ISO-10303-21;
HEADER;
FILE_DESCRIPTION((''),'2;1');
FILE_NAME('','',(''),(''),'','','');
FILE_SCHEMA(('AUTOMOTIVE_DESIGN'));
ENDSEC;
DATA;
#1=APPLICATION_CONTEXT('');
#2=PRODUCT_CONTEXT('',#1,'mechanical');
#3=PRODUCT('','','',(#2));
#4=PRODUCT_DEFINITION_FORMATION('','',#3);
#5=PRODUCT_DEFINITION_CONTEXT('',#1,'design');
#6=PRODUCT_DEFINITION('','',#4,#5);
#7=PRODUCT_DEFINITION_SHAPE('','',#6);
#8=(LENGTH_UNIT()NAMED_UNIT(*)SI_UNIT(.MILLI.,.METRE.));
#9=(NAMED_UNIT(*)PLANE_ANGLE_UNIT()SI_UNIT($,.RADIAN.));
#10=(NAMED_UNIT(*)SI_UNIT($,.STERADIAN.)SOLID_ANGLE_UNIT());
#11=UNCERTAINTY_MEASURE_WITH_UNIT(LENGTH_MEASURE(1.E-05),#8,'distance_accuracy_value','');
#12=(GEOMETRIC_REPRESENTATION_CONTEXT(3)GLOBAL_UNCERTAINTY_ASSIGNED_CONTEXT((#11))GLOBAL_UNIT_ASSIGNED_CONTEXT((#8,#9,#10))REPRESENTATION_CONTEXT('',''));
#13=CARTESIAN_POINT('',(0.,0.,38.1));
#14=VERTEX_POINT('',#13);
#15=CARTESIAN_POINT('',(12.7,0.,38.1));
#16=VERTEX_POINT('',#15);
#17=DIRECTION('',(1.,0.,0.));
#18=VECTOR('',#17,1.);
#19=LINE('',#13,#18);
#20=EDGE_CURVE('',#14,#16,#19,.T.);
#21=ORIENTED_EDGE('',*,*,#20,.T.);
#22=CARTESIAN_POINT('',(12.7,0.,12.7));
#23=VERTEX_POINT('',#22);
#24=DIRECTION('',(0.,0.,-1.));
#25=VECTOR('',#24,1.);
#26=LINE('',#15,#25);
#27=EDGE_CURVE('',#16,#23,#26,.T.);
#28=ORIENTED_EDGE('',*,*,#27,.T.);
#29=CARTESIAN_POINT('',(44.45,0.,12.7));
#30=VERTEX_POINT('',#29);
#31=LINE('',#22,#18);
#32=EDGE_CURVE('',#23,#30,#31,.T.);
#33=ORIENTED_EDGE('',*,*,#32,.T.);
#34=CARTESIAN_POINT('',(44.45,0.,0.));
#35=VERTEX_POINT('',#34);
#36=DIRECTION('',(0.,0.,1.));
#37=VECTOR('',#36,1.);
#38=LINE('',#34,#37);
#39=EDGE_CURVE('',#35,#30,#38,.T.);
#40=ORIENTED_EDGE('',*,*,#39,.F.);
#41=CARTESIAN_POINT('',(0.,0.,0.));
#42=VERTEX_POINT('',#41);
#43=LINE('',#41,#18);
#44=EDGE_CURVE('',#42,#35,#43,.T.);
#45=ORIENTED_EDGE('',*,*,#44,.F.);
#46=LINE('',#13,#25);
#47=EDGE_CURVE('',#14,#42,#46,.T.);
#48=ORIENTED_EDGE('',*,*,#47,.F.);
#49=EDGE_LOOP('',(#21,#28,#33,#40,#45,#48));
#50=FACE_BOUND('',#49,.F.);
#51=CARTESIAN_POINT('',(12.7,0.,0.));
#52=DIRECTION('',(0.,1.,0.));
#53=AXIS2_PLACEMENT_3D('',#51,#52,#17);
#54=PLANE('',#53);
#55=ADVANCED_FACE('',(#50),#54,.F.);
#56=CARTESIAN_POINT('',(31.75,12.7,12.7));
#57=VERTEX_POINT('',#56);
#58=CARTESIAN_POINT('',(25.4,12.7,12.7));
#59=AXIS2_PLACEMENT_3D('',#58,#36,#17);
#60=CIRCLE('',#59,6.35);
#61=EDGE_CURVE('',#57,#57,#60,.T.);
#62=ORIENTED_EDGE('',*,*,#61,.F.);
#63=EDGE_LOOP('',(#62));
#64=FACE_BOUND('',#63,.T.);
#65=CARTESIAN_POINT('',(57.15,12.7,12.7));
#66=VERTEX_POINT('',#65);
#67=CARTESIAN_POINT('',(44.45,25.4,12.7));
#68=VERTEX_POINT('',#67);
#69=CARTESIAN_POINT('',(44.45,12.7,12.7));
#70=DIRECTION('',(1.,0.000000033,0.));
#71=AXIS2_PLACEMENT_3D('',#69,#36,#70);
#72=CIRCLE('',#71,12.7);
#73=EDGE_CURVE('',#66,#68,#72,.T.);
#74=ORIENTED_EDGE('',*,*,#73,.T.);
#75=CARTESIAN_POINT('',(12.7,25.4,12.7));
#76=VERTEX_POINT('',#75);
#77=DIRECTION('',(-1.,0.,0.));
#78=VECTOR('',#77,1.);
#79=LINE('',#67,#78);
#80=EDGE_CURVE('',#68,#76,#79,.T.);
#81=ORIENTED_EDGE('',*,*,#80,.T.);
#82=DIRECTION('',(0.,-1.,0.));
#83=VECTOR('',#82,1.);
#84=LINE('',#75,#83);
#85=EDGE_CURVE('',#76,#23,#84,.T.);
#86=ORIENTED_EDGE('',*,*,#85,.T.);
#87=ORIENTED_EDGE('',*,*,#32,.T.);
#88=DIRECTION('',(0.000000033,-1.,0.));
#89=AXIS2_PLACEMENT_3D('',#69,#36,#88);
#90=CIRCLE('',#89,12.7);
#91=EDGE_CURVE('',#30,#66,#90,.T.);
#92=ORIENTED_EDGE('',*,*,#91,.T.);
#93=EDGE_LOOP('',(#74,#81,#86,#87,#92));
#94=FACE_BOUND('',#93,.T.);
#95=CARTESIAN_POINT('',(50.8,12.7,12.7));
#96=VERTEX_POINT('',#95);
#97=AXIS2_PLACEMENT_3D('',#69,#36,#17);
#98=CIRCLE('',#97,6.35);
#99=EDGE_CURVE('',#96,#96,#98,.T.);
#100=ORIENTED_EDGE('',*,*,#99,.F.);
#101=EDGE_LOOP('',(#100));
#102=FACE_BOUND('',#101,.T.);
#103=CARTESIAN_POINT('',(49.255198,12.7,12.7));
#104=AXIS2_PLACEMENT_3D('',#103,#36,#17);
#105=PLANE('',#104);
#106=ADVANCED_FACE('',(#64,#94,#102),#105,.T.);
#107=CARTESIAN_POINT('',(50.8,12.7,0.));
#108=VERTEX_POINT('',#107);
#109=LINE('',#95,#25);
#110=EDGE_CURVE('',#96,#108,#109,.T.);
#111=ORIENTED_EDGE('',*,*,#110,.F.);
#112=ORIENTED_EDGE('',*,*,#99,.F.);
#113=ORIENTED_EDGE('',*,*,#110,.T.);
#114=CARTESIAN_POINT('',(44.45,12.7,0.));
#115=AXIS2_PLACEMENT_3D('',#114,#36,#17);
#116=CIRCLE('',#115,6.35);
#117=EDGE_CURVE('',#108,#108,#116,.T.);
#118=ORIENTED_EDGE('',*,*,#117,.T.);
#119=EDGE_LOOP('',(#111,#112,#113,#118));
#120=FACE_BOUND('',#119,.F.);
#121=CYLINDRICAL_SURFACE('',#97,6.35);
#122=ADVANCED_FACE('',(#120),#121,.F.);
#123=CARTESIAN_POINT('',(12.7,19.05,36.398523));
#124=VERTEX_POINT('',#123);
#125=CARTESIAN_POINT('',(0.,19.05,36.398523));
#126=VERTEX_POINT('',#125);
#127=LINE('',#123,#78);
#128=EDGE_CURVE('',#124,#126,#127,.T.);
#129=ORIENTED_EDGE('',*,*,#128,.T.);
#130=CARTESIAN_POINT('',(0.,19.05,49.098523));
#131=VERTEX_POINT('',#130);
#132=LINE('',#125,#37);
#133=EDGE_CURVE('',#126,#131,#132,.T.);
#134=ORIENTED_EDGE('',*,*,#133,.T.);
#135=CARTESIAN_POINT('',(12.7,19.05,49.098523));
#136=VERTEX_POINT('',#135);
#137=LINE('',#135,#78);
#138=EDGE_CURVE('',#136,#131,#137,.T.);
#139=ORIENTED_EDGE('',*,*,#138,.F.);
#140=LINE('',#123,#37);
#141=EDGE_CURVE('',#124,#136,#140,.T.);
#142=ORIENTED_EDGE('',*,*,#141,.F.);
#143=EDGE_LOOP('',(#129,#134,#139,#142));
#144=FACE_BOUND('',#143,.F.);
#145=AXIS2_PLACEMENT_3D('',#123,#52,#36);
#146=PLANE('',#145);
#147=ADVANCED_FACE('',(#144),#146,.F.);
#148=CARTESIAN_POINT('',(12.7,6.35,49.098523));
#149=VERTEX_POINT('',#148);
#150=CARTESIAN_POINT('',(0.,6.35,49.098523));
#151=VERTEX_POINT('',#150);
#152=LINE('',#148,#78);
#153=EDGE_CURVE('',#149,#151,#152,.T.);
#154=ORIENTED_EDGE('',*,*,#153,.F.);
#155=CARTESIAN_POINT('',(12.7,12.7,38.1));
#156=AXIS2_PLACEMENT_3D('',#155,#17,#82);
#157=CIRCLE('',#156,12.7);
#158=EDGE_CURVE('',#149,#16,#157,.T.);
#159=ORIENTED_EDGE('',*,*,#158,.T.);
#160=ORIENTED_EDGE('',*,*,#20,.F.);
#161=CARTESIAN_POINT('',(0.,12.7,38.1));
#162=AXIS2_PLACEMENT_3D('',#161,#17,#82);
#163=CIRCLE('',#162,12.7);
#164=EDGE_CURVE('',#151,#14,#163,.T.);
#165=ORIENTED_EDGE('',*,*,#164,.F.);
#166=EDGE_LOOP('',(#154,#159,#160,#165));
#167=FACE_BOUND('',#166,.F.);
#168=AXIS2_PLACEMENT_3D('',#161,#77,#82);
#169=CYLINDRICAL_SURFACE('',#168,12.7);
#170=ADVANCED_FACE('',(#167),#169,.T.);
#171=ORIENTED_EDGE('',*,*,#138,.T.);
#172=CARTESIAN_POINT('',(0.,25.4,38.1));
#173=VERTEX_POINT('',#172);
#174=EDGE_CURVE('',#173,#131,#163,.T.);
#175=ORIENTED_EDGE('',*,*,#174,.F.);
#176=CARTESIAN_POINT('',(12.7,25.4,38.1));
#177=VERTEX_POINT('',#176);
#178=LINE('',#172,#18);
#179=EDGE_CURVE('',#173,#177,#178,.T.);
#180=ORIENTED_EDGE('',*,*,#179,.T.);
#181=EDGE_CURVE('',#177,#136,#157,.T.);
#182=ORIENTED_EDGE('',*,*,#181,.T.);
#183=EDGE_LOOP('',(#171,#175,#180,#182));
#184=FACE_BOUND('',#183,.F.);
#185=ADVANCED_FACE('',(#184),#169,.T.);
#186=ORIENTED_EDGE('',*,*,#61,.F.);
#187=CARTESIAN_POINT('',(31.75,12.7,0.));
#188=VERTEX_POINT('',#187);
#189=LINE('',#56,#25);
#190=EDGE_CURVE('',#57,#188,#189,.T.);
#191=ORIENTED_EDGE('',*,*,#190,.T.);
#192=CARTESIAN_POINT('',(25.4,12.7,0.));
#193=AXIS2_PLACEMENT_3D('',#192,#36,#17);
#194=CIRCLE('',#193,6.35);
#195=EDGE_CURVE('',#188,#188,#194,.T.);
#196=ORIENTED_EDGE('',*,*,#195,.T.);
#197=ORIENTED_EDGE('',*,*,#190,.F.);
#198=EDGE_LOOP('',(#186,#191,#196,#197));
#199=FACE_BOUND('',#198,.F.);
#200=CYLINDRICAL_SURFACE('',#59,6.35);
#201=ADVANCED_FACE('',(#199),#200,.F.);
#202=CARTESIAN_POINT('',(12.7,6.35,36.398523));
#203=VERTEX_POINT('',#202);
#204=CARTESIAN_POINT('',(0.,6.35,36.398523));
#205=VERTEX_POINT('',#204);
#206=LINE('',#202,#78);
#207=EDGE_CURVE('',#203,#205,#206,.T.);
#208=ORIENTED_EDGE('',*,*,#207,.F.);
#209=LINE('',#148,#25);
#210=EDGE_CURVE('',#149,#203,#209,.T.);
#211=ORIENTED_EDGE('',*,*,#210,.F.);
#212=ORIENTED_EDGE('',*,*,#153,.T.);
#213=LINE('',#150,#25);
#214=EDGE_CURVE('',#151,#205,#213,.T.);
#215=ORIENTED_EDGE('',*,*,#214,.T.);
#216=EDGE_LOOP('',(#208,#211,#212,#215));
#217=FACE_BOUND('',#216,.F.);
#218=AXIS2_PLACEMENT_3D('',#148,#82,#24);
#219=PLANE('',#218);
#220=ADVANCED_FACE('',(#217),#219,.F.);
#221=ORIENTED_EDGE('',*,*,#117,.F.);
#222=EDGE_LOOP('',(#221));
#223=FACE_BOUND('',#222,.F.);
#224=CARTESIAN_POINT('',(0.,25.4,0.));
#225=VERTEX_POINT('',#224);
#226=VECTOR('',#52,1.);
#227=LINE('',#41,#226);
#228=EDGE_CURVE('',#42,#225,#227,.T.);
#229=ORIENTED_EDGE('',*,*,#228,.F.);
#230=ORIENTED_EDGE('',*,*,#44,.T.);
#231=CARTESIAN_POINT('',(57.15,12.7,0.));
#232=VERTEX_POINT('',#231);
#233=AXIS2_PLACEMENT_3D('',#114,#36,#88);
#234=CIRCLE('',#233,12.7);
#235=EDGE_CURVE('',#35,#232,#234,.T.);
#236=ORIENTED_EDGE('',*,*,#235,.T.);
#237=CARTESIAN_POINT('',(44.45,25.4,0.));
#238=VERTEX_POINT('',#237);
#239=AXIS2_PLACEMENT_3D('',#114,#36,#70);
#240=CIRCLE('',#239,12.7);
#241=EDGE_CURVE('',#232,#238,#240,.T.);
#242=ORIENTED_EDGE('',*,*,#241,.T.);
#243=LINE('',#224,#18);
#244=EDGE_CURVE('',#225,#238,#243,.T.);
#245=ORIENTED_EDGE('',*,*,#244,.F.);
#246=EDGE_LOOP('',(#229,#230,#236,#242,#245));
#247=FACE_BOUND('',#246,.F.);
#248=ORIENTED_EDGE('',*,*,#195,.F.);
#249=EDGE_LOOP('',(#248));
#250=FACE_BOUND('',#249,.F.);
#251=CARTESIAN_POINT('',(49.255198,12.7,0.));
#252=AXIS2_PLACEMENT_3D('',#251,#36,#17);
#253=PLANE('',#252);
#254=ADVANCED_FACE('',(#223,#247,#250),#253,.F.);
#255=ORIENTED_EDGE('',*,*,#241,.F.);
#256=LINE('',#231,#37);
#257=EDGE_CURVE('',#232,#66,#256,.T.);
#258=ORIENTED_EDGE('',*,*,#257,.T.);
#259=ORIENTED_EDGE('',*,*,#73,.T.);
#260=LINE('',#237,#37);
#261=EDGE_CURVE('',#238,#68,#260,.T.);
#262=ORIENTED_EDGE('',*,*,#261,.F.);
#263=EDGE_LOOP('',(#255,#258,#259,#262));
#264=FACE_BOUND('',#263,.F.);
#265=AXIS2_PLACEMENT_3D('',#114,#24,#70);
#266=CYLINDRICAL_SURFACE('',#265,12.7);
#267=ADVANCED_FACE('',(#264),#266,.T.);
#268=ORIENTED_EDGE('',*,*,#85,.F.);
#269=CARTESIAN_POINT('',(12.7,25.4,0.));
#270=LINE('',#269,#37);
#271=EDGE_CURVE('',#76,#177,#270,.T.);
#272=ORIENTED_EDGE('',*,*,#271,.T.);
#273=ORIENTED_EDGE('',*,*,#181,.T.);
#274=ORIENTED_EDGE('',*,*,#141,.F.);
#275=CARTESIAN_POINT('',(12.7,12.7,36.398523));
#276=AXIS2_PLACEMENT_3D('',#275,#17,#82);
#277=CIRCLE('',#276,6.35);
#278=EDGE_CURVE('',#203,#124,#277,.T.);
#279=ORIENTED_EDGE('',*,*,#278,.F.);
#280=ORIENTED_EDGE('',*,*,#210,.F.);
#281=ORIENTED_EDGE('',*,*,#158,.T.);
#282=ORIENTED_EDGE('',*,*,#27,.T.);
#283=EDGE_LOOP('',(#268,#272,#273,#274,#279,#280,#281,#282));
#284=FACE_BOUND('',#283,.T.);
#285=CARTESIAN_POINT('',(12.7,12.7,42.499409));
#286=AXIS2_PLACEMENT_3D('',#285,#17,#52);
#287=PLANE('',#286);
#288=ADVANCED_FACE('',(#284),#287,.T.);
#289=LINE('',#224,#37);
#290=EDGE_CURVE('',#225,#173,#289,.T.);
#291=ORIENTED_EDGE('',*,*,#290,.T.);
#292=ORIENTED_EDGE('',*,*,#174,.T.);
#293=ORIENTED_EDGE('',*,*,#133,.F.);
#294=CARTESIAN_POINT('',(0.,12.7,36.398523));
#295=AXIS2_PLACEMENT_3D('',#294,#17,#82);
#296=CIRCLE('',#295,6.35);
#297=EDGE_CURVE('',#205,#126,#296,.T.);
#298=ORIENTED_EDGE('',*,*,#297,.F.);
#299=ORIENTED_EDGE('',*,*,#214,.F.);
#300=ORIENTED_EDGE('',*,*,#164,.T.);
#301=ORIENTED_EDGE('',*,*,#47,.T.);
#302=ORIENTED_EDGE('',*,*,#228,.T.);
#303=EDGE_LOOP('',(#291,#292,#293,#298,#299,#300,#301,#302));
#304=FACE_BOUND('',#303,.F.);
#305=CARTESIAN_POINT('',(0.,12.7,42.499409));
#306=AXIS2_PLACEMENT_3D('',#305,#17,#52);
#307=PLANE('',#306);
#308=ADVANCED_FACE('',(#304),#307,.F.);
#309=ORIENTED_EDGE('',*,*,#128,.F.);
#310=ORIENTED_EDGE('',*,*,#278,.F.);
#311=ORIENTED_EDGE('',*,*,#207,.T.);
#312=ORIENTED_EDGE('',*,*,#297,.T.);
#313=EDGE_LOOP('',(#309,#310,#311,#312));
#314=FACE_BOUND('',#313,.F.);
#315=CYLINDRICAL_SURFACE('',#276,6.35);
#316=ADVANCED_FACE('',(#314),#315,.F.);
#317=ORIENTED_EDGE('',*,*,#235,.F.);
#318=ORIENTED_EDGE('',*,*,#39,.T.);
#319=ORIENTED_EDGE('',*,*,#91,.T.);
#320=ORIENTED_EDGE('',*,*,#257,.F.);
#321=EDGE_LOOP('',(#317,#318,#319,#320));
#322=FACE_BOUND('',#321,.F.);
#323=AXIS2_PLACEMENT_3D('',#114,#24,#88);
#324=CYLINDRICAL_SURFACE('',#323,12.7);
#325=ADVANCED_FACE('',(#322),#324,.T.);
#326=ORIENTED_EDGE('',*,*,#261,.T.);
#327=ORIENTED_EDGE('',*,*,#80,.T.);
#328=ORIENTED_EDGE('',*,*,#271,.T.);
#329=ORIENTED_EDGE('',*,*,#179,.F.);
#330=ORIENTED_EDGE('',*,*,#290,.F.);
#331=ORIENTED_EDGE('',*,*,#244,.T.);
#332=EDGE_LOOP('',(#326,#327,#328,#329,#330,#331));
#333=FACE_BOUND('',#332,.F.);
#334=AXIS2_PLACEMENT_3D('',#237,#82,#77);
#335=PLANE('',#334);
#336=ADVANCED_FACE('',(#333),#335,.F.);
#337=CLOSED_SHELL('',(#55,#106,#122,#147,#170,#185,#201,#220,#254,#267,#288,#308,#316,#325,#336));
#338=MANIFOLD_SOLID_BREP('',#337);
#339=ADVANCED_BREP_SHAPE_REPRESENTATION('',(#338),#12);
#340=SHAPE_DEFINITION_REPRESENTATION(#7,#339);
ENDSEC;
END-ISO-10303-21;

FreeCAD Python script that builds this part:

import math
import FreeCAD as App
import Part
import Sketcher

V = App.Vector
Q = App.Units.Quantity

doc = App.newDocument("Part")
body = doc.addObject("PartDesign::Body", "Body")

sketch1 = body.newObject("Sketcher::SketchObject", "Sketch")
sketch1.AttachmentSupport = (doc.getObject("YZ_Plane"), [""])
sketch1.MapMode = "FlatFace"
sketch1.addGeometry(Part.ArcOfCircle(Part.Circle(V(13, 38, 0), V(0, 0, 1), 13), math.radians(0), math.radians(180)), False)
sketch1.addGeometry(Part.LineSegment(V(0, 38, 0), V(0, 0, 0)), False)
sketch1.addGeometry(Part.LineSegment(V(0, 0, 0), V(25, 0, 0)), False)
sketch1.addGeometry(Part.LineSegment(V(25, 0, 0), V(25, 38, 0)), False)
sketch1.addConstraint(Sketcher.Constraint("Tangent", 0, 2, 1, 1))
sketch1.addConstraint(Sketcher.Constraint("Coincident", 1, 2, 2, 1))
sketch1.addConstraint(Sketcher.Constraint("Coincident", 2, 2, 3, 1))
sketch1.addConstraint(Sketcher.Constraint("Tangent", 3, 2, 0, 1))
sketch1.addConstraint(Sketcher.Constraint("Vertical", 1))
sketch1.addConstraint(Sketcher.Constraint("Horizontal", 2))
sketch1.addConstraint(Sketcher.Constraint("Vertical", 3))
sketch1.addConstraint(Sketcher.Constraint("Coincident", 1, 2, -1, 1))
sketch1.addConstraint(Sketcher.Constraint("Radius", 0, Q("0.5 in")))
sketch1.addConstraint(Sketcher.Constraint("DistanceY", 1, 2, 1, 1, Q("1.5 in")))
pad1 = body.newObject("PartDesign::Pad", "Pad")
pad1.Profile = sketch1
pad1.Length = Q("0.5 in")

sketch2 = body.newObject("Sketcher::SketchObject", "Sketch001")
sketch2.AttachmentSupport = (doc.getObject("YZ_Plane"), [""])
sketch2.MapMode = "FlatFace"
sketch2.AttachmentOffset = App.Placement(V(0, 0, 0.5 * 25.4), App.Rotation())
sketch2.addGeometry(Part.LineSegment(V(6, 49, 0), V(6, 36, 0)), False)
sketch2.addGeometry(Part.ArcOfCircle(Part.Circle(V(13, 36, 0), V(0, 0, 1), 6), math.radians(180), math.radians(360)), False)
sketch2.addGeometry(Part.LineSegment(V(19, 36, 0), V(19, 49, 0)), False)
sketch2.addGeometry(Part.ArcOfCircle(Part.Circle(V(13, 38, 0), V(0, 0, 1), 13), math.radians(60), math.radians(120)), False)
sketch2.addConstraint(Sketcher.Constraint("Tangent", 0, 2, 1, 1))
sketch2.addConstraint(Sketcher.Constraint("Tangent", 1, 2, 2, 1))
sketch2.addConstraint(Sketcher.Constraint("Coincident", 2, 2, 3, 1))
sketch2.addConstraint(Sketcher.Constraint("Coincident", 3, 2, 0, 1))
sketch2.addConstraint(Sketcher.Constraint("Vertical", 0))
sketch2.addConstraint(Sketcher.Constraint("Vertical", 2))
sketch2.addConstraint(Sketcher.Constraint("Horizontal", 2, 2, 3, 2))
sketch2.addConstraint(Sketcher.Constraint("Radius", 3, Q("0.5000001 in")))
sketch2.addConstraint(Sketcher.Constraint("Radius", 1, Q("0.25 in")))
sketch2.addConstraint(Sketcher.Constraint("DistanceY", 0, 2, 0, 1, Q("0.5 in")))
sketch2.addConstraint(Sketcher.Constraint("DistanceX", -1, 1, 1, 3, Q("0.5 in")))
sketch2.addConstraint(Sketcher.Constraint("DistanceY", -1, 1, 3, 3, Q("1.4999999 in")))
pocket1 = body.newObject("PartDesign::Pocket", "Pocket")
pocket1.Profile = sketch2
pocket1.Length = Q("0.5 in")

sketch3 = body.newObject("Sketcher::SketchObject", "Sketch002")
sketch3.AttachmentSupport = (doc.getObject("XY_Plane"), [""])
sketch3.MapMode = "FlatFace"
sketch3.addGeometry(Part.ArcOfCircle(Part.Circle(V(44, 13, 0), V(0, 0, 1), 13), math.radians(-90), math.radians(0)), False)
sketch3.addGeometry(Part.ArcOfCircle(Part.Circle(V(44, 13, 0), V(0, 0, 1), 13), math.radians(0), math.radians(90)), False)
sketch3.addGeometry(Part.LineSegment(V(44, 25, 0), V(13, 25, 0)), False)
sketch3.addGeometry(Part.LineSegment(V(13, 25, 0), V(13, 0, 0)), False)
sketch3.addGeometry(Part.LineSegment(V(13, 0, 0), V(44, 0, 0)), False)
sketch3.addConstraint(Sketcher.Constraint("Tangent", 0, 2, 1, 1))
sketch3.addConstraint(Sketcher.Constraint("Tangent", 1, 2, 2, 1))
sketch3.addConstraint(Sketcher.Constraint("Coincident", 2, 2, 3, 1))
sketch3.addConstraint(Sketcher.Constraint("Coincident", 3, 2, 4, 1))
sketch3.addConstraint(Sketcher.Constraint("Tangent", 4, 2, 0, 1))
sketch3.addConstraint(Sketcher.Constraint("Horizontal", 2))
sketch3.addConstraint(Sketcher.Constraint("Vertical", 3))
sketch3.addConstraint(Sketcher.Constraint("Horizontal", 4))
sketch3.addConstraint(Sketcher.Constraint("Equal", 0, 1))
sketch3.addConstraint(Sketcher.Constraint("PointOnObject", 3, 2, -1))
sketch3.addConstraint(Sketcher.Constraint("Horizontal", 1, 3, 0, 2))
sketch3.addConstraint(Sketcher.Constraint("Radius", 0, Q("0.5 in")))
sketch3.addConstraint(Sketcher.Constraint("DistanceX", 2, 2, 2, 1, Q("1.25 in")))
sketch3.addConstraint(Sketcher.Constraint("DistanceX", -1, 1, 2, 2, Q("0.5 in")))
pad2 = body.newObject("PartDesign::Pad", "Pad001")
pad2.Profile = sketch3
pad2.Length = Q("0.5 in")

sketch4 = body.newObject("Sketcher::SketchObject", "Sketch003")
sketch4.AttachmentSupport = (doc.getObject("XY_Plane"), [""])
sketch4.MapMode = "FlatFace"
sketch4.AttachmentOffset = App.Placement(V(0, 0, 0.5 * 25.4), App.Rotation())
sketch4.addGeometry(Part.Circle(V(44, 13, 0), V(0, 0, 1), 6), False)
sketch4.addGeometry(Part.Circle(V(25, 13, 0), V(0, 0, 1), 6), False)
sketch4.addConstraint(Sketcher.Constraint("Equal", 0, 1))
sketch4.addConstraint(Sketcher.Constraint("Horizontal", 0, 3, 1, 3))
sketch4.addConstraint(Sketcher.Constraint("Diameter", 0, Q("0.5 in")))
sketch4.addConstraint(Sketcher.Constraint("DistanceX", -1, 1, 1, 3, Q("1 in")))
sketch4.addConstraint(Sketcher.Constraint("DistanceY", -1, 1, 0, 3, Q("0.5 in")))
sketch4.addConstraint(Sketcher.Constraint("DistanceX", -1, 1, 0, 3, Q("1.75 in")))
pocket2 = body.newObject("PartDesign::Pocket", "Pocket001")
pocket2.Profile = sketch4
pocket2.Length = Q("0.5 in")

doc.recompute()
